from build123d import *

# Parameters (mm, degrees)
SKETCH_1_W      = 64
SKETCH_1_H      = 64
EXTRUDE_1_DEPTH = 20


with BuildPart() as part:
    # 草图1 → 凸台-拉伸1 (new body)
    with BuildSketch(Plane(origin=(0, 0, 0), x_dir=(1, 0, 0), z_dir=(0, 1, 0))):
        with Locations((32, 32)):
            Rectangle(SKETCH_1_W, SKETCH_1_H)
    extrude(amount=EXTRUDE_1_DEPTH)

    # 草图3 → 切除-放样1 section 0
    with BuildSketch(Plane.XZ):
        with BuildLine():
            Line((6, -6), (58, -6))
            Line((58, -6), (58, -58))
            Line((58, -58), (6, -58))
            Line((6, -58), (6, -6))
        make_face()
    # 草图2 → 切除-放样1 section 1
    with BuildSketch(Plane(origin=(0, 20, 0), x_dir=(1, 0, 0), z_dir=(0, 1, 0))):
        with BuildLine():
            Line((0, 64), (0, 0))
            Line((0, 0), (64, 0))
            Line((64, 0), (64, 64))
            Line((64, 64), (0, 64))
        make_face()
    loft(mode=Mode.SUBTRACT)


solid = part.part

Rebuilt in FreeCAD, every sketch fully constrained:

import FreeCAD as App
import Part
import Sketcher
from FreeCAD import Vector


def add_polygon(sketch, points):
    """Adds a closed chain of lines whose ends are joined by coincident constraints."""
    first, n = sketch.GeometryCount, len(points)
    for a, b in zip(points, points[1:] + points[:1]):
        sketch.addGeometry(Part.LineSegment(App.Vector(*a, 0), App.Vector(*b, 0)), False)
    for i in range(n):
        sketch.addConstraint(Sketcher.Constraint("Coincident", first + i, 2, first + (i + 1) % n, 1))

doc = App.newDocument("Part")
body = doc.addObject("PartDesign::Body", "Body")

# Sketch on XZ plane
sketch1 = doc.addObject("Sketcher::SketchObject", "Sketch")
body.addObject(sketch1)
sketch1.AttachmentSupport = (doc.XZ_Plane, [""])
sketch1.MapMode = "FlatFace"
add_polygon(sketch1, [(0, -64), (0, 0), (64, 0), (64, -64)])  # lines 0-3
sketch1.addConstraint([
    Sketcher.Constraint("Vertical", 0),
    Sketcher.Constraint("Horizontal", 1),
    Sketcher.Constraint("Vertical", 2),
    Sketcher.Constraint("Horizontal", 3),
    Sketcher.Constraint("Coincident", 0, 2, -1, 1),
    Sketcher.Constraint("Equal", 3, 0),
    Sketcher.Constraint("DistanceX", 1, 1, 1, 2, 64.0),
])
pad1 = doc.addObject("PartDesign::Pad", "Pad")
body.addObject(pad1)
pad1.Profile = sketch1
pad1.Length = 20
pad1.Reversed = True

# Sketch on XZ plane
sketch2 = doc.addObject("Sketcher::SketchObject", "Sketch001")
body.addObject(sketch2)
sketch2.AttachmentSupport = (doc.XZ_Plane, [""])
sketch2.MapMode = "FlatFace"
add_polygon(sketch2, [(58, -6), (6, -6), (6, -58), (58, -58)])  # lines 0-3
sketch2.addConstraint([
    Sketcher.Constraint("Horizontal", 0),
    Sketcher.Constraint("Vertical", 1),
    Sketcher.Constraint("Horizontal", 2),
    Sketcher.Constraint("Vertical", 3),
    Sketcher.Constraint("Equal", 2, 1),
    Sketcher.Constraint("DistanceX", 0, 2, 0, 1, 52.0),
    Sketcher.Constraint("DistanceX", -1, 1, 0, 2, 6.0),
    Sketcher.Constraint("DistanceY", 0, 2, -1, 1, 6.0),
])

# Sketch on XZ plane
sketch3 = doc.addObject("Sketcher::SketchObject", "Sketch002")
body.addObject(sketch3)
sketch3.AttachmentSupport = (doc.XZ_Plane, [""])
sketch3.MapMode = "FlatFace"
sketch3.AttachmentOffset = App.Placement(Vector(0, 0, -20), App.Rotation())
add_polygon(sketch3, [(0, -64), (0, 0), (64, 0), (64, -64)])  # lines 0-3
sketch3.addConstraint([
    Sketcher.Constraint("Vertical", 0),
    Sketcher.Constraint("Horizontal", 1),
    Sketcher.Constraint("Vertical", 2),
    Sketcher.Constraint("Horizontal", 3),
    Sketcher.Constraint("Coincident", 0, 2, -1, 1),
    Sketcher.Constraint("Equal", 3, 0),
    Sketcher.Constraint("DistanceX", 1, 1, 1, 2, 64.0),
])

subtractiveloft = doc.addObject("PartDesign::SubtractiveLoft", "SubtractiveLoft")
body.addObject(subtractiveloft)
subtractiveloft.Profile = sketch2
subtractiveloft.Sections = [sketch3]

doc.recompute()
